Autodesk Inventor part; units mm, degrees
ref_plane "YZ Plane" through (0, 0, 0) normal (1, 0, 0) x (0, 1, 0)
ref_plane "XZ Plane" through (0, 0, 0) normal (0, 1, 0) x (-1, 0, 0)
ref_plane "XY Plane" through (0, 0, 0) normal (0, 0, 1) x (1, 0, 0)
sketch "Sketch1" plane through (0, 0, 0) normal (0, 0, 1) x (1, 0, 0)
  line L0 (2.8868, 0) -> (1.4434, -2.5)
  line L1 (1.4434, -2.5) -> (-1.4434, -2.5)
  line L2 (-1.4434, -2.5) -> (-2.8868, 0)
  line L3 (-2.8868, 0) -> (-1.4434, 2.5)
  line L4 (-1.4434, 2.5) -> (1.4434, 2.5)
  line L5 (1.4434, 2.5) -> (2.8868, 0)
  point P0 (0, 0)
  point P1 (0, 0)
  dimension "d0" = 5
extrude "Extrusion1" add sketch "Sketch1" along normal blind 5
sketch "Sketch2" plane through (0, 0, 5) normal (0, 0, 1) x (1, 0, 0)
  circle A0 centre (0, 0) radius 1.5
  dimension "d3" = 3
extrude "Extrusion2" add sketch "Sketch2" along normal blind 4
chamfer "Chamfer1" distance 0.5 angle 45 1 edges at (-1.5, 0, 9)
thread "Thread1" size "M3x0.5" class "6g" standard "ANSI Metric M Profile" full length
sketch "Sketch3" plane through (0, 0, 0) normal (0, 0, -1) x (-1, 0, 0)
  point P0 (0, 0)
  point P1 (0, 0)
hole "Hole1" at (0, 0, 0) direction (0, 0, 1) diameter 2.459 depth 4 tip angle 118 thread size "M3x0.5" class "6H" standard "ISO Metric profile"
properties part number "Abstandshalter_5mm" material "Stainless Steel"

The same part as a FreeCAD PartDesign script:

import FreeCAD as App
import Part
import Sketcher
from FreeCAD import Vector
Q = App.Units.Quantity


def edges_at(feature, points):
    """Names of the edges that pass closest to the given points."""
    edges = feature.Shape.Edges
    near = lambda p: min(range(len(edges)), key=lambda i: edges[i].distToShape(Part.Vertex(*p))[0])
    return sorted({f"Edge{near(p) + 1}" for p in points})


def add_polygon(sketch, points):
    """Adds a closed chain of lines whose ends are joined by coincident constraints."""
    first, n = sketch.GeometryCount, len(points)
    for a, b in zip(points, points[1:] + points[:1]):
        sketch.addGeometry(Part.LineSegment(App.Vector(*a, 0), App.Vector(*b, 0)), False)
    for i in range(n):
        sketch.addConstraint(Sketcher.Constraint("Coincident", first + i, 2, first + (i + 1) % n, 1))

doc = App.newDocument("Part")
body = doc.addObject("PartDesign::Body", "Body")

sketch1 = body.newObject("Sketcher::SketchObject", "Sketch")
sketch1.AttachmentSupport = (doc.getObject("XY_Plane"), [""])
sketch1.MapMode = "FlatFace"
add_polygon(sketch1, [(1.4, -2.5), (2.9, 0), (1.4, 2.5), (-1.4, 2.5), (-2.9, 0), (-1.4, -2.5)])
sketch1.addConstraint([
    Sketcher.Constraint("Horizontal", 2),
    Sketcher.Constraint("Horizontal", 5),
    Sketcher.Constraint("Symmetric", 0, 2, 3, 2, -1, 1),
    Sketcher.Constraint("Symmetric", 1, 2, 4, 2, -1, 1),
    Sketcher.Constraint("PointOnObject", 0, 2, -1),
    Sketcher.Constraint("Parallel", 0, 3),
    Sketcher.Constraint("Vertical", 2, 2, 4, 2),
    Sketcher.Constraint("DistanceY", 4, 2, 2, 2, Q("5 mm")),
    Sketcher.Constraint("Angle", 0, Q("59.9996 deg")),
    Sketcher.Constraint("DistanceX", 2, 2, 2, 1, Q("2.8868 mm")),
])
pad1 = body.newObject("PartDesign::Pad", "Pad")
pad1.Profile = sketch1
pad1.Length = 5

sketch2 = body.newObject("Sketcher::SketchObject", "Sketch001")
sketch2.AttachmentSupport = (doc.getObject("XY_Plane"), [""])
sketch2.MapMode = "FlatFace"
sketch2.AttachmentOffset = App.Placement(Vector(0, 0, 5), App.Rotation())
sketch2.addGeometry(Part.Circle(Vector(0, 0, 0), Vector(0, 0, 1), 1.5), False)
sketch2.addConstraint([
    Sketcher.Constraint("Coincident", 0, 3, -1, 1),
    Sketcher.Constraint("Diameter", 0, Q("3 mm")),
])
pad2 = body.newObject("PartDesign::Pad", "Pad001")
pad2.Profile = sketch2
pad2.Length = 4
doc.recompute()

chamfer = body.newObject("PartDesign::Chamfer", "Chamfer")
chamfer.Base = (pad2, edges_at(pad2, [(-1.5, 0, 9)]))
chamfer.Size = 0.5

sketch3 = body.newObject("Sketcher::SketchObject", "Sketch002")
sketch3.AttachmentSupport = (doc.getObject("XY_Plane"), [""])
sketch3.MapMode = "FlatFace"
sketch3.addGeometry(Part.Circle(Vector(0, 0, 0), Vector(0, 0, 1), 1.2), False)
sketch3.addConstraint([
    Sketcher.Constraint("Coincident", 0, 3, -1, 1),
    Sketcher.Constraint("Diameter", 0, Q("2.459 mm")),
])
doc.recompute()
hole = body.newObject("PartDesign::Hole", "Hole")
hole.Profile = sketch3
hole.ThreadType = "None"
hole.Diameter = 2.459
hole.DepthType = "Dimension"
hole.Depth = 4
hole.DrillPoint = "Angled"
hole.DrillPointAngle = 118
hole.Reversed = True

doc.recompute()
